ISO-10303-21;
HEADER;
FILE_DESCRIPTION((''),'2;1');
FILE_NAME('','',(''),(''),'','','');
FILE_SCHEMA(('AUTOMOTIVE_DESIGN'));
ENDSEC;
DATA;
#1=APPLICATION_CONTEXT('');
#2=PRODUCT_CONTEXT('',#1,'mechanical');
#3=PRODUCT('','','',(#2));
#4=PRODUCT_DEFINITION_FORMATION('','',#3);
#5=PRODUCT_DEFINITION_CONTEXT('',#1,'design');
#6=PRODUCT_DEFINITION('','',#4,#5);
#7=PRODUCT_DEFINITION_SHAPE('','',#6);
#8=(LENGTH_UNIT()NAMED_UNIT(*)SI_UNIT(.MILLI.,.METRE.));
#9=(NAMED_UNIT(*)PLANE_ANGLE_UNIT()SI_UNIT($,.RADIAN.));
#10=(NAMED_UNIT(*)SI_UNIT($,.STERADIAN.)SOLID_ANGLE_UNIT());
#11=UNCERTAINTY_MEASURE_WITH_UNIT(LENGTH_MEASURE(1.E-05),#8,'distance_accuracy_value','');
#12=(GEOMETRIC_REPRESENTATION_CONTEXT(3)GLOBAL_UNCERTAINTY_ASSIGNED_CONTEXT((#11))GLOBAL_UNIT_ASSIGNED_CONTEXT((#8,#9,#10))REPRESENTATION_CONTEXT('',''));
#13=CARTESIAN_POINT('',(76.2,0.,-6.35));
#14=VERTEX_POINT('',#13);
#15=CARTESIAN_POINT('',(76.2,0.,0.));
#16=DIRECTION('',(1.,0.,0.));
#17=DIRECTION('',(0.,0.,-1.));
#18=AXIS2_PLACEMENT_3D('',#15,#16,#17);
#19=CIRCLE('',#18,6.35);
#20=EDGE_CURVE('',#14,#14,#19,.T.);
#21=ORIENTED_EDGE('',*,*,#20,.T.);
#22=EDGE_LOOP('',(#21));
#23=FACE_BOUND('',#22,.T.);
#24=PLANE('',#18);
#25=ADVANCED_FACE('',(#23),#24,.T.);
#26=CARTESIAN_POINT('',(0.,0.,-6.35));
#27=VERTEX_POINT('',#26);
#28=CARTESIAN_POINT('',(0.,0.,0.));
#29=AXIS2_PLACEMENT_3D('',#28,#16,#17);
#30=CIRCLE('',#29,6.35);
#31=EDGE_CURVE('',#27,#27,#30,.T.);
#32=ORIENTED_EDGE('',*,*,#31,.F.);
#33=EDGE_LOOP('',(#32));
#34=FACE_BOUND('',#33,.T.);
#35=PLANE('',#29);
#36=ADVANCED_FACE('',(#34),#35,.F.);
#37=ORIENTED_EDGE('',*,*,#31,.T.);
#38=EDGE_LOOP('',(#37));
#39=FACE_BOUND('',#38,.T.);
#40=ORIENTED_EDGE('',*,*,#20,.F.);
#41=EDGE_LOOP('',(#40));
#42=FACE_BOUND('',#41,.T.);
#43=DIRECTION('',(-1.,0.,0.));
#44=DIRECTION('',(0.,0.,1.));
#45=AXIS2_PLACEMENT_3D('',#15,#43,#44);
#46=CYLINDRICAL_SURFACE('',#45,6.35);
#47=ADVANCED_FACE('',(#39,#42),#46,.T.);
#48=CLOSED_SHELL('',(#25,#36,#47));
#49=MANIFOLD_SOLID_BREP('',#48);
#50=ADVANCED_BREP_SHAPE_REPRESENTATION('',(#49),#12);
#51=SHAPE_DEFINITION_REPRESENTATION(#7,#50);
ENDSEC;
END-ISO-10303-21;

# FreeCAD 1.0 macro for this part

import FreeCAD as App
import Part
import Sketcher
Q = App.Units.Quantity

doc = App.newDocument("Part")
body = doc.addObject("PartDesign::Body", "Body")

# Sketch on YZ plane
sketch1 = body.newObject("Sketcher::SketchObject", "Sketch")
sketch1.AttachmentSupport = (doc.getObject("YZ_Plane"), [""])
sketch1.MapMode = "FlatFace"
sketch1.addGeometry(Part.Circle(App.Vector(0, 0, 0), App.Vector(0, 0, 1), 6), False)
sketch1.addConstraint([
    Sketcher.Constraint("Coincident", 0, 3, -1, 1),
    Sketcher.Constraint("Diameter", 0, Q("0.5 in")),
])
pad1 = body.newObject("PartDesign::Pad", "Pad")
pad1.Profile = sketch1
pad1.Length = Q("3 in")

doc.recompute()
